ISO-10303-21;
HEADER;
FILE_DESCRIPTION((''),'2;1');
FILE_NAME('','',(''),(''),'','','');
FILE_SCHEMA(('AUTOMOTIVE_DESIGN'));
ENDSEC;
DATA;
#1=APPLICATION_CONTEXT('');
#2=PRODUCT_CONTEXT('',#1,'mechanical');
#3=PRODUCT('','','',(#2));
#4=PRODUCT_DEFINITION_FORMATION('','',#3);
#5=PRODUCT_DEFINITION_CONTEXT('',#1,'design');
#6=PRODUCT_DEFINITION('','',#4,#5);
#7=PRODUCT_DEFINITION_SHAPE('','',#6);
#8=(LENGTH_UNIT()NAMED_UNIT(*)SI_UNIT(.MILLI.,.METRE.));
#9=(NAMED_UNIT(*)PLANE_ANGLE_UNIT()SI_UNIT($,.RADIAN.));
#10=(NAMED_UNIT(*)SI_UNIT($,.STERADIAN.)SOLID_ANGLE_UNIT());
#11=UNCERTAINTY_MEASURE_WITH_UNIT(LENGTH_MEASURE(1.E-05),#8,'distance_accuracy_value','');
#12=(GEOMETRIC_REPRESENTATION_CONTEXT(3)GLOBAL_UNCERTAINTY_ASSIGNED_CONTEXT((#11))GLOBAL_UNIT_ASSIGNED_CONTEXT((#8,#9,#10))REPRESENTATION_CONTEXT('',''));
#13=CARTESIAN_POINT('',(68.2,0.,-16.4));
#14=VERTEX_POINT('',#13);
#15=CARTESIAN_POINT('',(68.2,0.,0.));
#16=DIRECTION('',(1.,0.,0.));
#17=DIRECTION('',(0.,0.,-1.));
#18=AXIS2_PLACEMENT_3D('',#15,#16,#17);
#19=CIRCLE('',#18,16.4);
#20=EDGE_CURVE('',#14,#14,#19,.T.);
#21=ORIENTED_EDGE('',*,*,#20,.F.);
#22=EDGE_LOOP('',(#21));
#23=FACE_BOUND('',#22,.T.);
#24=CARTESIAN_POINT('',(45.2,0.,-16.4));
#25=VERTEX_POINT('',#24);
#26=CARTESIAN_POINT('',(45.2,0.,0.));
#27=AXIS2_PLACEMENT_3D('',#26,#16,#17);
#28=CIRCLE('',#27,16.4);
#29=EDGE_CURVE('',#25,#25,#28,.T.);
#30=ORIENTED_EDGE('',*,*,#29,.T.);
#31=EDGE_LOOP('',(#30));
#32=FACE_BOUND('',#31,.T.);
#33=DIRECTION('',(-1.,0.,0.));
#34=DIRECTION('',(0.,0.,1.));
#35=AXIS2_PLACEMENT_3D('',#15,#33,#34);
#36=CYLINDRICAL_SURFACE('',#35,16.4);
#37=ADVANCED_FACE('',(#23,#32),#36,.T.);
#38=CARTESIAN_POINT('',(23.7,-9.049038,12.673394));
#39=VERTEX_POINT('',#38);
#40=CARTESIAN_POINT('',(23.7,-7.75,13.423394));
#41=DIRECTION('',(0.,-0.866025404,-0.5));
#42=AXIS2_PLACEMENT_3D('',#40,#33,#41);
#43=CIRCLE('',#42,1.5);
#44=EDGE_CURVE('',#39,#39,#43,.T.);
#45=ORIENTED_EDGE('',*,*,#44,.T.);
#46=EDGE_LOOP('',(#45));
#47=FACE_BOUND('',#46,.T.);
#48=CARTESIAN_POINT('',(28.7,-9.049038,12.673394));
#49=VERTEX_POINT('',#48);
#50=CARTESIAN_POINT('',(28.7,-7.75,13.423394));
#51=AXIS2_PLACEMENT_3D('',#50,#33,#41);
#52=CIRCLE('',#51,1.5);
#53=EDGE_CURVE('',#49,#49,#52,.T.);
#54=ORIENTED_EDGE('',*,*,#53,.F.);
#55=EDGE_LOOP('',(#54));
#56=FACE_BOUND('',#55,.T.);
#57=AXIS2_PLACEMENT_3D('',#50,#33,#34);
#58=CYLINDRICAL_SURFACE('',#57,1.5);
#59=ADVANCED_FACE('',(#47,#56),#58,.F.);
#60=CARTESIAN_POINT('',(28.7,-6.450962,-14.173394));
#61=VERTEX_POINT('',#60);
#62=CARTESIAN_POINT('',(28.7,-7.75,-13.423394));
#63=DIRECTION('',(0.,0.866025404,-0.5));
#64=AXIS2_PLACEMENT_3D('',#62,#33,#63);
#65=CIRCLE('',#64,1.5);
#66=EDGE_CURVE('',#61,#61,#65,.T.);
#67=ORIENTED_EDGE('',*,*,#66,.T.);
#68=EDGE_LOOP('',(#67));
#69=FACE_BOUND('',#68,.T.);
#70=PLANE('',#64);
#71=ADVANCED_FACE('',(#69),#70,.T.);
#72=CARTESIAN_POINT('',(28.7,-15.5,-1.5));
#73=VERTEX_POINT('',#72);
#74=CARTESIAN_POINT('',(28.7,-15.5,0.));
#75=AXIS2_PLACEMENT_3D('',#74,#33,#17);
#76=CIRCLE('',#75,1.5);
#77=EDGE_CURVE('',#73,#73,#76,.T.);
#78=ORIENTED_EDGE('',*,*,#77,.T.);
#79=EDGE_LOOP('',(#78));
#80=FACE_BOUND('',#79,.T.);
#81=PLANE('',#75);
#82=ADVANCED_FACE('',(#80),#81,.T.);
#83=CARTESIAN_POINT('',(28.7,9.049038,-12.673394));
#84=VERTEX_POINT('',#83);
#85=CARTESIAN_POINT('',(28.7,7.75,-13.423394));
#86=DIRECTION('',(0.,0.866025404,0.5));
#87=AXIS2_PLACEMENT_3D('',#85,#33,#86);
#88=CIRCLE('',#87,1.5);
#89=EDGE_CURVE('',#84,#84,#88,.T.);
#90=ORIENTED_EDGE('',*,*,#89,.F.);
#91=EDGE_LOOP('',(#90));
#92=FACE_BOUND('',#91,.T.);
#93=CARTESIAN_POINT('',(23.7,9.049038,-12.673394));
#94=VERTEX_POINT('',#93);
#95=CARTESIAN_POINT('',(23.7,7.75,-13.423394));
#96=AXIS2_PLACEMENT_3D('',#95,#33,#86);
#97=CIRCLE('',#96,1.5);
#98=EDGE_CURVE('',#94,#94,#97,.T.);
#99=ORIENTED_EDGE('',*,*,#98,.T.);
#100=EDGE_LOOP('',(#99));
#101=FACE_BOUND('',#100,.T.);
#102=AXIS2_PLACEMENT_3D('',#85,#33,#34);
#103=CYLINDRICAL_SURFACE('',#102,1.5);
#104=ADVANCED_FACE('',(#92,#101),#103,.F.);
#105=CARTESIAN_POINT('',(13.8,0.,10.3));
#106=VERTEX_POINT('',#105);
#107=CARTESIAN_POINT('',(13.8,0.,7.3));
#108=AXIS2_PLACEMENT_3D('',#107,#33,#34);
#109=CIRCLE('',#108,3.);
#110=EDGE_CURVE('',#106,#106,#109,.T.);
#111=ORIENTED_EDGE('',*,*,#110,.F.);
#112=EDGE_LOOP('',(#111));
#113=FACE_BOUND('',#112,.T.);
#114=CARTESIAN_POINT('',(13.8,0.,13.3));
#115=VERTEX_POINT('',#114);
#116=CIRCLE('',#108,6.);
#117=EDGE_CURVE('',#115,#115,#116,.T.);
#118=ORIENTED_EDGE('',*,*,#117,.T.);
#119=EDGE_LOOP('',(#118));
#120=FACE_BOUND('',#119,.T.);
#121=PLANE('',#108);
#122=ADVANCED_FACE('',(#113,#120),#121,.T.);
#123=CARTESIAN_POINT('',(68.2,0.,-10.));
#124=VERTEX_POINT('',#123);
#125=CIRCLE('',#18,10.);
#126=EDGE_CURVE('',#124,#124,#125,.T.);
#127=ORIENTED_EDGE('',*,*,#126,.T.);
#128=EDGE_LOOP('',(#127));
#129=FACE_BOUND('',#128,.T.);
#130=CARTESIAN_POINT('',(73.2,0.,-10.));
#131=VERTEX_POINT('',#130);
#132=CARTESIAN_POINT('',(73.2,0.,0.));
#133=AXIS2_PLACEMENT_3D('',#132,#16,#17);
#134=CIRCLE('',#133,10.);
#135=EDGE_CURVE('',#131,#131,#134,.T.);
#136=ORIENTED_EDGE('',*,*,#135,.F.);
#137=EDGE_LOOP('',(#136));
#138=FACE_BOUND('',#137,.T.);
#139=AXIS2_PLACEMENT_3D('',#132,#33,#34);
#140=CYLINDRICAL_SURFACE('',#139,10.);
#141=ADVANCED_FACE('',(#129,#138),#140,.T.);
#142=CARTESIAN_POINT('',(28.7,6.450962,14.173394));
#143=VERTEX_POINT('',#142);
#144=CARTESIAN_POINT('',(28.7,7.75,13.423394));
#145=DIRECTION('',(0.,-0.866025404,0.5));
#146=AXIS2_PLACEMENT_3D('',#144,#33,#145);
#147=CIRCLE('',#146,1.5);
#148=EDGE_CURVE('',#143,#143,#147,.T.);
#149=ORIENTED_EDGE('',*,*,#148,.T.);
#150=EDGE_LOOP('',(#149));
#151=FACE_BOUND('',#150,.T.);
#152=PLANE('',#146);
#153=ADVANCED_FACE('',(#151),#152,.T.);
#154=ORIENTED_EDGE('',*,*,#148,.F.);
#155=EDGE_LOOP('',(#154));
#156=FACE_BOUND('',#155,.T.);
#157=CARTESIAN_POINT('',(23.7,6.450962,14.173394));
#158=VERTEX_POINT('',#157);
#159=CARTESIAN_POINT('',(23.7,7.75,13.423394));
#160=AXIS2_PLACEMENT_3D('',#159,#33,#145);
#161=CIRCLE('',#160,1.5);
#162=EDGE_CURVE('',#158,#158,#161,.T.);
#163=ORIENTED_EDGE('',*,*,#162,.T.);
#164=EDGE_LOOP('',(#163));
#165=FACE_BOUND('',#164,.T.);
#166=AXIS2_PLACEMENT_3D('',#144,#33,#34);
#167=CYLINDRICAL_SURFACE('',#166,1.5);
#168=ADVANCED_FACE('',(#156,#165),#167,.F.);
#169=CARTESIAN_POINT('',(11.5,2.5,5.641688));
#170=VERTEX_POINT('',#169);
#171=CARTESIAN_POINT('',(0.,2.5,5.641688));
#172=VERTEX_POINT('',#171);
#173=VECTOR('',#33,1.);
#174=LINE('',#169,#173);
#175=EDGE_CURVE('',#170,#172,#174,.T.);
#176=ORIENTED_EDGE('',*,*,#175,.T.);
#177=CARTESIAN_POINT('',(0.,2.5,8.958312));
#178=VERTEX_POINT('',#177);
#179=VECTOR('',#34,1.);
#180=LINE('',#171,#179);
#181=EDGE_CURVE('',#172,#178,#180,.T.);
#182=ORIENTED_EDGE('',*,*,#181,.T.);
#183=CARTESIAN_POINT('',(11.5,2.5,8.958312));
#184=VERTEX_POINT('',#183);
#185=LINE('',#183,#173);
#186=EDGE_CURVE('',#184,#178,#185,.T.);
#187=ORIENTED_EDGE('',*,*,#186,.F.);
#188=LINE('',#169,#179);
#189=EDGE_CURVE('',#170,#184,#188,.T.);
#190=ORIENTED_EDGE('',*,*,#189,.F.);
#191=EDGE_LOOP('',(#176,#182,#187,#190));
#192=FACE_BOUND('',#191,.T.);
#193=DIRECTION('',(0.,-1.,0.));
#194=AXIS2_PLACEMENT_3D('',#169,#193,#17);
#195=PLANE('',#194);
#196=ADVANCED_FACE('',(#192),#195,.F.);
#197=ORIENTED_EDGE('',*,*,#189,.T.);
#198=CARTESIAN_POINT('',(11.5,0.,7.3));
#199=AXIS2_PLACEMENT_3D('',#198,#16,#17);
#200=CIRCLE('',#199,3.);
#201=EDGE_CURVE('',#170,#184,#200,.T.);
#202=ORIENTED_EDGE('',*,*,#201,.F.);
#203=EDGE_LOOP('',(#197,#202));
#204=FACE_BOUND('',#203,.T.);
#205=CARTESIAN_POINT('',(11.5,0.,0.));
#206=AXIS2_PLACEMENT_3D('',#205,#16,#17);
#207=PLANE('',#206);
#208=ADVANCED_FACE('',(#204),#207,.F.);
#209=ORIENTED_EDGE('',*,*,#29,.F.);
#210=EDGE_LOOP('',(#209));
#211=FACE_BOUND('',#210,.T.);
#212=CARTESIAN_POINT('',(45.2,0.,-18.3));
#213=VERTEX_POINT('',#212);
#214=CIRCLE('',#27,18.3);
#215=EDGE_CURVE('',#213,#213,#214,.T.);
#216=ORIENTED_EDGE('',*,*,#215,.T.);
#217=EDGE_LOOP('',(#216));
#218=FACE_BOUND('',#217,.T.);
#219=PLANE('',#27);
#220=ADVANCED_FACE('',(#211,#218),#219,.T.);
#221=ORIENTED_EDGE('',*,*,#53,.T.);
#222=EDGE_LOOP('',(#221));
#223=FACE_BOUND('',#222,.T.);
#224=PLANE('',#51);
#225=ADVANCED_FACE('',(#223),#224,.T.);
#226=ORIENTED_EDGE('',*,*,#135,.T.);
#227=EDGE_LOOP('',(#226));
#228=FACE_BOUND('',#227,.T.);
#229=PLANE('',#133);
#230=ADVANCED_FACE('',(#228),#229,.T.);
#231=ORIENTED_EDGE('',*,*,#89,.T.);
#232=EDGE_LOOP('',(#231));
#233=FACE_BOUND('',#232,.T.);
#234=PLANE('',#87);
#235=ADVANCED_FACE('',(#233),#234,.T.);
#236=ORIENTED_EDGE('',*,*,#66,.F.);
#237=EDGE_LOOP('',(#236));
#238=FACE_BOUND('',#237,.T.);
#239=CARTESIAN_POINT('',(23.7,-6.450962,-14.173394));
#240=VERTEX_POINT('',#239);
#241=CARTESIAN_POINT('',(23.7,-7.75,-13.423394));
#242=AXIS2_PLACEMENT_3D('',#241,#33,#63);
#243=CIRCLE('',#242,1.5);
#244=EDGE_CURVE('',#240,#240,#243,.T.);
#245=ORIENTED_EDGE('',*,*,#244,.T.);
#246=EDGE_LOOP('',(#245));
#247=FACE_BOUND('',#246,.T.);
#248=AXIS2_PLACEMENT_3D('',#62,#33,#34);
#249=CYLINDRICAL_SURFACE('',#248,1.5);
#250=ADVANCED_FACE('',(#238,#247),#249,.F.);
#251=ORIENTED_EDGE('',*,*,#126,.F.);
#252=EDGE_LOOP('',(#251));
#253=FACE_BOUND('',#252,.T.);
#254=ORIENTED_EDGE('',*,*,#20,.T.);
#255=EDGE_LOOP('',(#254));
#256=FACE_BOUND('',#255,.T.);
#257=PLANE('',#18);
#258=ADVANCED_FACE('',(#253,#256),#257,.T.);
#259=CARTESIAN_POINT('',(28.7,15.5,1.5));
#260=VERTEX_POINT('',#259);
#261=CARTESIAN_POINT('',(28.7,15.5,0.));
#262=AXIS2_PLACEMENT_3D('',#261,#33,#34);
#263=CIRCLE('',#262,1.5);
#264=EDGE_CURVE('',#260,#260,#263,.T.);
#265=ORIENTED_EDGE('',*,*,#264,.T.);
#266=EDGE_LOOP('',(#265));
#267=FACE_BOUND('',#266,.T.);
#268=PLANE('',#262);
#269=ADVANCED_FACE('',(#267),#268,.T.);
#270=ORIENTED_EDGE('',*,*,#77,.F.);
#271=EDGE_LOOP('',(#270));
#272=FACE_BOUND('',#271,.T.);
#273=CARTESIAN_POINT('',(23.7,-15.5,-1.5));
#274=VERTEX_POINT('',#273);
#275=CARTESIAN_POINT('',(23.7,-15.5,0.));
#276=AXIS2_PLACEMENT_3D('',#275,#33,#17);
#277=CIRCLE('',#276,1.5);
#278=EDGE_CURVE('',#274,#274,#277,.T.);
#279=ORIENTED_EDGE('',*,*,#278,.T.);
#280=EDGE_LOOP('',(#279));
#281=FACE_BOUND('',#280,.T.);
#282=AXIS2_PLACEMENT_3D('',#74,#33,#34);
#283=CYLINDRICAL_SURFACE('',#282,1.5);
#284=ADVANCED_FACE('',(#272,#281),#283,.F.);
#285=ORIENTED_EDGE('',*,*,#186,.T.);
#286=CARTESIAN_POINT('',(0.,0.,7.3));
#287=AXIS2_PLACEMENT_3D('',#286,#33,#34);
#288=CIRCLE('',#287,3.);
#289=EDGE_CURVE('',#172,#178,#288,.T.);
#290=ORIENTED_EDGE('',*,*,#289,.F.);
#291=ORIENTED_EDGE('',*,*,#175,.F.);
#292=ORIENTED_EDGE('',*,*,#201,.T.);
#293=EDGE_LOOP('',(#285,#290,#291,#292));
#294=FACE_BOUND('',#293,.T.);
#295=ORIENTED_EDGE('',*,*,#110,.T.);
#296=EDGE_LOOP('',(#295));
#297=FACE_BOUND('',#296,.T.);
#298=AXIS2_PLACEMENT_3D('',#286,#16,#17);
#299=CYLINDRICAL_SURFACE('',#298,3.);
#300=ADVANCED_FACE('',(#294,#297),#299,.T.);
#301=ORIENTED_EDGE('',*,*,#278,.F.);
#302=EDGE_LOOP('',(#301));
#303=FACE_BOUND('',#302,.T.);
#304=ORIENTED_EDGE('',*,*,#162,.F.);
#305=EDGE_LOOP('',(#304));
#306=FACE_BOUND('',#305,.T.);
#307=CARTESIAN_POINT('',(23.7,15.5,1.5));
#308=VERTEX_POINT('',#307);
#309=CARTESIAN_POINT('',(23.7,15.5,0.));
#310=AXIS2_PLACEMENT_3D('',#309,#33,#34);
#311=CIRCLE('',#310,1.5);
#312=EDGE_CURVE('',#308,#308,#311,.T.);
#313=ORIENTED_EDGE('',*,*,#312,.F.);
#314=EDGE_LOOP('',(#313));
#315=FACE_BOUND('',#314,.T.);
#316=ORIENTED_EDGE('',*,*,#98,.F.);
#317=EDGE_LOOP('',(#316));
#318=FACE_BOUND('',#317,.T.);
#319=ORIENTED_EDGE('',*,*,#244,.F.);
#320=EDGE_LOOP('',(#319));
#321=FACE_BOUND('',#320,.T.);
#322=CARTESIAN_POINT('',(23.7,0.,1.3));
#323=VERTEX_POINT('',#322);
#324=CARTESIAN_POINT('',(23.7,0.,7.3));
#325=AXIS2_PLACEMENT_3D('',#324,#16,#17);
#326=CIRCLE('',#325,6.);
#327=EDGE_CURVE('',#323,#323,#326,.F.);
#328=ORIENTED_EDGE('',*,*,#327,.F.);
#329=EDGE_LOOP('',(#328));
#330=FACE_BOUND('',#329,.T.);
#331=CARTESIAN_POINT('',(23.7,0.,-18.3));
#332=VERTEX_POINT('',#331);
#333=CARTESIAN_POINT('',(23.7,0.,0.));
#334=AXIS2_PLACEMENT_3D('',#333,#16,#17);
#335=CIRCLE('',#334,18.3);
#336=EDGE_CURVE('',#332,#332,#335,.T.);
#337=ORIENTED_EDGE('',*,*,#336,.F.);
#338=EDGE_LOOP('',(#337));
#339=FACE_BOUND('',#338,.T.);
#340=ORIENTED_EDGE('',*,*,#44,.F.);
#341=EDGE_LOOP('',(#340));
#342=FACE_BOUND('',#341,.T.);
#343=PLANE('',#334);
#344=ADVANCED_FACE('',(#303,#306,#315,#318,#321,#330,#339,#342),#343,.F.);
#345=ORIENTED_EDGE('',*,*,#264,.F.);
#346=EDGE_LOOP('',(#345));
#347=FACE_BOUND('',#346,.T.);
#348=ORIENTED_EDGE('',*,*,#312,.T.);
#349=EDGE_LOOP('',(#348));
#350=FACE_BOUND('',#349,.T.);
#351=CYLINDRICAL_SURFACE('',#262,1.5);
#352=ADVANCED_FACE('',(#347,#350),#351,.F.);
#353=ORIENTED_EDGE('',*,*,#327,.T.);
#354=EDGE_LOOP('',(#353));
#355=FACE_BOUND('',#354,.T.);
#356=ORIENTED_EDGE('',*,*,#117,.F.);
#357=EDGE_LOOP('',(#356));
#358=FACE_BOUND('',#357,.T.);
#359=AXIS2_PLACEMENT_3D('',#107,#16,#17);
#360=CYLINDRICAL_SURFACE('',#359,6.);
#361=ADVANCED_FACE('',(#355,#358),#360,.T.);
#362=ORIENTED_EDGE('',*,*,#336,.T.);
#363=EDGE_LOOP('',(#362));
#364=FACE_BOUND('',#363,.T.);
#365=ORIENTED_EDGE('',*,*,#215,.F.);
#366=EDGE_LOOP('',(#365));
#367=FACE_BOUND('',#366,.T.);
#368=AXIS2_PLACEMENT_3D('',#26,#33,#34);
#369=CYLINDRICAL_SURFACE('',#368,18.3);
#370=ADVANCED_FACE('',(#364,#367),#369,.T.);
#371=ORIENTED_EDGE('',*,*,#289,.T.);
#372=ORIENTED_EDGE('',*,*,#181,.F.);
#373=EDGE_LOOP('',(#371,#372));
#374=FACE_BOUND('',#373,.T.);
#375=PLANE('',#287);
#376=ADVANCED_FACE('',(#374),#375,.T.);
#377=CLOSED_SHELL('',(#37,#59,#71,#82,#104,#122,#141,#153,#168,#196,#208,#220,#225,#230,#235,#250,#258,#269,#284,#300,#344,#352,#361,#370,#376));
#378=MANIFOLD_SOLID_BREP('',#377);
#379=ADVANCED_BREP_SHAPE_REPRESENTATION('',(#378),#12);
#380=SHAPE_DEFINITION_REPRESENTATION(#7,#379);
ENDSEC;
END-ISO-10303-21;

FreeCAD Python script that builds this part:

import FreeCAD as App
import Part
import Sketcher
from FreeCAD import Vector
Q = App.Units.Quantity


def add_polygon(sketch, points):
    """Adds a closed chain of lines whose ends are joined by coincident constraints."""
    first, n = sketch.GeometryCount, len(points)
    for a, b in zip(points, points[1:] + points[:1]):
        sketch.addGeometry(Part.LineSegment(App.Vector(*a, 0), App.Vector(*b, 0)), False)
    for i in range(n):
        sketch.addConstraint(Sketcher.Constraint("Coincident", first + i, 2, first + (i + 1) % n, 1))

doc = App.newDocument("Part")
body = doc.addObject("PartDesign::Body", "Body")

# Sketch on YZ plane
sketch1 = body.newObject("Sketcher::SketchObject", "Sketch")
sketch1.AttachmentSupport = (doc.getObject("YZ_Plane"), [""])
sketch1.MapMode = "FlatFace"
sketch1.addGeometry(Part.Circle(Vector(0, 0, 0), Vector(0, 0, 1), 3), False)
sketch1.addConstraint(Sketcher.Constraint("Coincident", 0, 3, -1, 1))
sketch1.addConstraint(Sketcher.Constraint("Diameter", 0, Q("6 mm")))
pad1 = body.newObject("PartDesign::Pad", "Pad")
pad1.Profile = sketch1
pad1.Length = 13.8

# Sketch on YZ plane
sketch2 = body.newObject("Sketcher::SketchObject", "Sketch001")
sketch2.AttachmentSupport = (doc.getObject("YZ_Plane"), [""])
sketch2.MapMode = "FlatFace"
sketch2.AttachmentOffset = App.Placement(Vector(0, 0, 13.8), App.Rotation())
sketch2.addGeometry(Part.Circle(Vector(0, 0, 0), Vector(0, 0, 1), 6), False)
sketch2.addConstraint(Sketcher.Constraint("Coincident", 0, 3, -1, 1))
sketch2.addConstraint(Sketcher.Constraint("Diameter", 0, Q("12 mm")))
pad2 = body.newObject("PartDesign::Pad", "Pad001")
pad2.Profile = sketch2
pad2.Length = 9.9

# Sketch on YZ plane
sketch3 = body.newObject("Sketcher::SketchObject", "Sketch002")
sketch3.AttachmentSupport = (doc.getObject("YZ_Plane"), [""])
sketch3.MapMode = "FlatFace"
sketch3.AttachmentOffset = App.Placement(Vector(0, 0, 23.7), App.Rotation())
sketch3.addGeometry(Part.Circle(Vector(0, 0, 0), Vector(0, 0, 1), 18), False)
sketch3.addConstraint(Sketcher.Constraint("Coincident", 0, 3, -1, 1))
sketch3.addConstraint(Sketcher.Constraint("Diameter", 0, Q("36.6 mm")))
pad3 = body.newObject("PartDesign::Pad", "Pad002")
pad3.Profile = sketch3
pad3.Length = 21.5

# Sketch on YZ plane
sketch4 = body.newObject("Sketcher::SketchObject", "Sketch003")
sketch4.AttachmentSupport = (doc.getObject("YZ_Plane"), [""])
sketch4.MapMode = "FlatFace"
sketch4.AttachmentOffset = App.Placement(Vector(0, 0, 45.2), App.Rotation())
sketch4.addGeometry(Part.Circle(Vector(0, 0, 0), Vector(0, 0, 1), 16), False)
sketch4.addConstraint(Sketcher.Constraint("Coincident", 0, 3, -1, 1))
sketch4.addConstraint(Sketcher.Constraint("Diameter", 0, Q("32.8 mm")))
pad4 = body.newObject("PartDesign::Pad", "Pad003")
pad4.Profile = sketch4
pad4.Length = 23

# Sketch on YZ plane
sketch5 = body.newObject("Sketcher::SketchObject", "Sketch004")
sketch5.AttachmentSupport = (doc.getObject("YZ_Plane"), [""])
sketch5.MapMode = "FlatFace"
sketch5.AttachmentOffset = App.Placement(Vector(0, 0, 68.2), App.Rotation())
sketch5.addGeometry(Part.Circle(Vector(0, 0, 0), Vector(0, 0, 1), 10), False)
sketch5.addConstraint(Sketcher.Constraint("Coincident", 0, 3, -1, 1))
sketch5.addConstraint(Sketcher.Constraint("Diameter", 0, Q("20 mm")))
pad5 = body.newObject("PartDesign::Pad", "Pad004")
pad5.Profile = sketch5
pad5.Length = 5

# Sketch on YZ plane
sketch6 = body.newObject("Sketcher::SketchObject", "Sketch005")
sketch6.AttachmentSupport = (doc.getObject("YZ_Plane"), [""])
sketch6.MapMode = "FlatFace"
add_polygon(sketch6, [(2.5, -1.7), (2.5, 1.7), (4, 1.9), (4, -2.5)])  # lines 0-3
sketch6.addConstraint(Sketcher.Constraint("Vertical", 0))
sketch6.addConstraint(Sketcher.Constraint("Vertical", 2))
sketch6.addConstraint(Sketcher.Constraint("DistanceX", -1, 1, 0, 2, Q("2.5 mm")))
sketch6.addConstraint(Sketcher.Constraint("DistanceY", 0, 1, 0, 2, Q("3.316625 mm")))
sketch6.addConstraint(Sketcher.Constraint("DistanceY", 2, 2, 2, 1, Q("4.368474 mm")))
sketch6.addConstraint(Sketcher.Constraint("DistanceY", 2, 2, -1, 1, Q("2.453659 mm")))
sketch6.addConstraint(Sketcher.Constraint("DistanceY", 2, 2, 0, 2, Q("4.111972 mm")))
sketch6.addConstraint(Sketcher.Constraint("Distance", 1, Q("1.554482 mm")))
pocket1 = body.newObject("PartDesign::Pocket", "Pocket")
pocket1.Profile = sketch6
pocket1.Length = 11.5
pocket1.Reversed = True

# Sketch on YZ plane
sketch7 = body.newObject("Sketcher::SketchObject", "Sketch006")
sketch7.AttachmentSupport = (doc.getObject("YZ_Plane"), [""])
sketch7.MapMode = "FlatFace"
sketch7.AttachmentOffset = App.Placement(Vector(0, 0, 23.7), App.Rotation())
sketch7.addGeometry(Part.Circle(Vector(15.5, 0, 0), Vector(0, 0, 1), 1.5), False)
sketch7.addConstraint(Sketcher.Constraint("PointOnObject", 0, 3, -1))
sketch7.addConstraint(Sketcher.Constraint("Diameter", 0, Q("3 mm")))
sketch7.addConstraint(Sketcher.Constraint("DistanceX", -1, 1, 0, 3, Q("15.5 mm")))
pocket2 = body.newObject("PartDesign::Pocket", "Pocket001")
pocket2.Profile = sketch7
pocket2.Length = 5
pocket2.Reversed = True
doc.recompute()

polarpattern = body.newObject("PartDesign::PolarPattern", "PolarPattern")
polarpattern.Originals = [pocket2]
polarpattern.Axis = (doc.getObject("X_Axis"), [""])
polarpattern.Angle = 360
polarpattern.Occurrences = 6
body.Tip = polarpattern

# Sketch on YZ plane
sketch8 = body.newObject("Sketcher::SketchObject", "Sketch007")
sketch8.AttachmentSupport = (doc.getObject("YZ_Plane"), [""])
sketch8.MapMode = "FlatFace"
sketch8.addGeometry(Part.Circle(Vector(0, 0, 0), Vector(0, 0, 1), 9), False)
sketch8.addConstraint(Sketcher.Constraint("Coincident", 0, 3, -1, 1))
sketch8.addConstraint(Sketcher.Constraint("Diameter", 0, Q("17.926672 mm")))
pocket3 = body.newObject("PartDesign::Pocket", "Pocket002")
pocket3.Profile = sketch8
pocket3.Length = 23.7
pocket3.Reversed = True

# Sketch on YZ plane
sketch9 = body.newObject("Sketcher::SketchObject", "Sketch008")
sketch9.AttachmentSupport = (doc.getObject("YZ_Plane"), [""])
sketch9.MapMode = "FlatFace"
sketch9.AttachmentOffset = App.Placement(Vector(0, 0, 23.7), App.Rotation())
sketch9.addGeometry(Part.Circle(Vector(0, 7, 0), Vector(0, 0, 1), 6), False)
sketch9.addConstraint(Sketcher.Constraint("PointOnObject", 0, 3, -2))
sketch9.addConstraint(Sketcher.Constraint("Diameter", 0, Q("12 mm")))
sketch9.addConstraint(Sketcher.Constraint("DistanceY", -1, 1, 0, 3, Q("7.3 mm")))
pad6 = body.newObject("PartDesign::Pad", "Pad005")
pad6.Profile = sketch9
pad6.Length = 9.9
pad6.Reversed = True

# Sketch on YZ plane
sketch10 = body.newObject("Sketcher::SketchObject", "Sketch009")
sketch10.AttachmentSupport = (doc.getObject("YZ_Plane"), [""])
sketch10.MapMode = "FlatFace"
sketch10.AttachmentOffset = App.Placement(Vector(0, 0, 13.8), App.Rotation())
sketch10.addGeometry(Part.Circle(Vector(0, 7.3, 0), Vector(0, 0, 1), 3), False)
sketch10.addConstraint(Sketcher.Constraint("PointOnObject", 0, 3, -2))
sketch10.addConstraint(Sketcher.Constraint("Diameter", 0, Q("6 mm")))
sketch10.addConstraint(Sketcher.Constraint("DistanceY", -1, 1, 0, 3, Q("7.3 mm")))
pad7 = body.newObject("PartDesign::Pad", "Pad006")
pad7.Profile = sketch10
pad7.Length = 13.8
pad7.Reversed = True

# Sketch on YZ plane
sketch11 = body.newObject("Sketcher::SketchObject", "Sketch010")
sketch11.AttachmentSupport = (doc.getObject("YZ_Plane"), [""])
sketch11.MapMode = "FlatFace"
add_polygon(sketch11, [(2.5, 5.6), (2.5, 9), (4.5, 9.9), (3.8, 5.6)])  # lines 0-3
sketch11.addConstraint(Sketcher.Constraint("Vertical", 0))
sketch11.addConstraint(Sketcher.Constraint("Horizontal", 3))
sketch11.addConstraint(Sketcher.Constraint("DistanceX", -1, 1, 0, 2, Q("2.5 mm")))
sketch11.addConstraint(Sketcher.Constraint("Distance", 1, Q("2.212799 mm")))
sketch11.addConstraint(Sketcher.Constraint("Distance", 2, Q("4.348921 mm")))
sketch11.addConstraint(Sketcher.Constraint("DistanceX", 3, 2, 3, 1, Q("1.298836 mm")))
sketch11.addConstraint(Sketcher.Constraint("DistanceY", 0, 1, 0, 2, Q("3.316625 mm")))
sketch11.addConstraint(Sketcher.Constraint("DistanceY", -1, 1, 0, 2, Q("8.958312 mm")))
pocket4 = body.newObject("PartDesign::Pocket", "Pocket003")
pocket4.Profile = sketch11
pocket4.Length = 11.5
pocket4.Reversed = True

doc.recompute()
